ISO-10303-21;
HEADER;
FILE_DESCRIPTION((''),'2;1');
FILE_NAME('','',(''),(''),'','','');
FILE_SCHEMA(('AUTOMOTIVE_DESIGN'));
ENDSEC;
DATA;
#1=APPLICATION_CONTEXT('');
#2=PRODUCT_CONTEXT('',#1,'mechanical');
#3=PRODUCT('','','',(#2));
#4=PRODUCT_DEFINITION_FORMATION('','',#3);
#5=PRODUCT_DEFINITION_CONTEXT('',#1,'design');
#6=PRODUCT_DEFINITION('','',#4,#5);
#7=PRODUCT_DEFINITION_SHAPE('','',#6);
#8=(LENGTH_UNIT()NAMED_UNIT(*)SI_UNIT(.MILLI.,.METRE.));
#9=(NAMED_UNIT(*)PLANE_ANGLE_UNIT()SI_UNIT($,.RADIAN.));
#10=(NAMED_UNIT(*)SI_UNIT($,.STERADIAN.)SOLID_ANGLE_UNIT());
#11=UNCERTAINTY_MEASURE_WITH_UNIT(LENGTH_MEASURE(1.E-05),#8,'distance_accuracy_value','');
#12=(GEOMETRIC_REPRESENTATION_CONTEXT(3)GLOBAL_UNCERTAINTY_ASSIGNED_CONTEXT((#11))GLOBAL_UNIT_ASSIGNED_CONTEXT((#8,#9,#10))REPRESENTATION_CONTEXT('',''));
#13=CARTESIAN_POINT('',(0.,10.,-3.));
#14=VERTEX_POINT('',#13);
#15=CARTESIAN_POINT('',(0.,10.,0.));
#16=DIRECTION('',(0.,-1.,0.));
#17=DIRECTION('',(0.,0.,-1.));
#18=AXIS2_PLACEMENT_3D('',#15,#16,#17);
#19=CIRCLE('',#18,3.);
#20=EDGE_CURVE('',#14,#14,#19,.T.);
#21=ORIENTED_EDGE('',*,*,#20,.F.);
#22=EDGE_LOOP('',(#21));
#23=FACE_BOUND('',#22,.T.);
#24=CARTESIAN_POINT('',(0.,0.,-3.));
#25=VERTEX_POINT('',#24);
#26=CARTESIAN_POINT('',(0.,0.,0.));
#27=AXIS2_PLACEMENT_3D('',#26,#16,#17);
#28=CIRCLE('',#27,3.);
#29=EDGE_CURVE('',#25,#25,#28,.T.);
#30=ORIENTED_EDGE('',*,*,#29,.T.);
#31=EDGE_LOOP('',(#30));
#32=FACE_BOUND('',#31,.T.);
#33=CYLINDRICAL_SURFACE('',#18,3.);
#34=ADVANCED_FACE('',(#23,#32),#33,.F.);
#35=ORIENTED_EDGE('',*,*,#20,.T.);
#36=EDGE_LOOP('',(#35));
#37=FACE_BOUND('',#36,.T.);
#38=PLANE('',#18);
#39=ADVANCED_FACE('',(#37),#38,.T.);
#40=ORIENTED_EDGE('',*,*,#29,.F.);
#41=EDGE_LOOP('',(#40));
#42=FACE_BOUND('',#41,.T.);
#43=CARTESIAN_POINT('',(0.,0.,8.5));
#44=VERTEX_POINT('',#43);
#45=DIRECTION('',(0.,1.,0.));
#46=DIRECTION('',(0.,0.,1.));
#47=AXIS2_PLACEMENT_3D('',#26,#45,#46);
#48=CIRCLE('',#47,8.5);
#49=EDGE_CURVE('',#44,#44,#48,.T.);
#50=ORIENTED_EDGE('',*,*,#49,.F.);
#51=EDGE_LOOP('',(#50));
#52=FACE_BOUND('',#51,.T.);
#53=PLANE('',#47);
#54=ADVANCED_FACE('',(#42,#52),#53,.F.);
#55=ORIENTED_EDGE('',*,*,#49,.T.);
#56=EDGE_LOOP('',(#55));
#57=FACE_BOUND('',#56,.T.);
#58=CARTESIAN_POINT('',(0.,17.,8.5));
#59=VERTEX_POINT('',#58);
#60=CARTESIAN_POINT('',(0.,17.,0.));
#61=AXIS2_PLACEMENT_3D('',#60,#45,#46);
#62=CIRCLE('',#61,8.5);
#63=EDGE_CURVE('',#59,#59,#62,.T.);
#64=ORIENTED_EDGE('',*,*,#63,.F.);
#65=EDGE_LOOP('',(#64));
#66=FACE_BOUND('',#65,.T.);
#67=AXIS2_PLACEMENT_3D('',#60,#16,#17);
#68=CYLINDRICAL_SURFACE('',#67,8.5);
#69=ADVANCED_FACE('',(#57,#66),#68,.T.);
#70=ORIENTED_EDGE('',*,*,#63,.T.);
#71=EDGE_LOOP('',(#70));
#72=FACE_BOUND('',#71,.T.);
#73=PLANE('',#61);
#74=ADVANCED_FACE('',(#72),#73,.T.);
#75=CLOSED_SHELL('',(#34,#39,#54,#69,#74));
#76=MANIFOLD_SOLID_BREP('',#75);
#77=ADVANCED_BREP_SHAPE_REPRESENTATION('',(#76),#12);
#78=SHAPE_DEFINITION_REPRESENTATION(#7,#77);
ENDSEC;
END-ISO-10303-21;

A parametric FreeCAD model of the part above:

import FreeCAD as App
import Part
import Sketcher

V = App.Vector

doc = App.newDocument("Part")
body = doc.addObject("PartDesign::Body", "Body")

sketch1 = body.newObject("Sketcher::SketchObject", "Sketch")
sketch1.AttachmentSupport = (doc.getObject("XZ_Plane"), [""])
sketch1.MapMode = "FlatFace"
sketch1.addGeometry(Part.Circle(V(0, 0, 0), V(0, 0, 1), 8.5), False)
sketch1.addConstraint([
    Sketcher.Constraint("Coincident", 0, 3, -1, 1),
    Sketcher.Constraint("Diameter", 0, 17.0),
])
pad1 = body.newObject("PartDesign::Pad", "Pad")
pad1.Profile = sketch1
pad1.Length = 17
pad1.Reversed = True

sketch2 = body.newObject("Sketcher::SketchObject", "Sketch001")
sketch2.AttachmentSupport = (doc.getObject("XZ_Plane"), [""])
sketch2.MapMode = "FlatFace"
sketch2.addGeometry(Part.Circle(V(0, 0, 0), V(0, 0, 1), 3), False)
sketch2.addConstraint([
    Sketcher.Constraint("Coincident", 0, 3, -1, 1),
    Sketcher.Constraint("Diameter", 0, 6.0),
])
pocket1 = body.newObject("PartDesign::Pocket", "Pocket")
pocket1.Profile = sketch2
pocket1.Length = 10

doc.recompute()
